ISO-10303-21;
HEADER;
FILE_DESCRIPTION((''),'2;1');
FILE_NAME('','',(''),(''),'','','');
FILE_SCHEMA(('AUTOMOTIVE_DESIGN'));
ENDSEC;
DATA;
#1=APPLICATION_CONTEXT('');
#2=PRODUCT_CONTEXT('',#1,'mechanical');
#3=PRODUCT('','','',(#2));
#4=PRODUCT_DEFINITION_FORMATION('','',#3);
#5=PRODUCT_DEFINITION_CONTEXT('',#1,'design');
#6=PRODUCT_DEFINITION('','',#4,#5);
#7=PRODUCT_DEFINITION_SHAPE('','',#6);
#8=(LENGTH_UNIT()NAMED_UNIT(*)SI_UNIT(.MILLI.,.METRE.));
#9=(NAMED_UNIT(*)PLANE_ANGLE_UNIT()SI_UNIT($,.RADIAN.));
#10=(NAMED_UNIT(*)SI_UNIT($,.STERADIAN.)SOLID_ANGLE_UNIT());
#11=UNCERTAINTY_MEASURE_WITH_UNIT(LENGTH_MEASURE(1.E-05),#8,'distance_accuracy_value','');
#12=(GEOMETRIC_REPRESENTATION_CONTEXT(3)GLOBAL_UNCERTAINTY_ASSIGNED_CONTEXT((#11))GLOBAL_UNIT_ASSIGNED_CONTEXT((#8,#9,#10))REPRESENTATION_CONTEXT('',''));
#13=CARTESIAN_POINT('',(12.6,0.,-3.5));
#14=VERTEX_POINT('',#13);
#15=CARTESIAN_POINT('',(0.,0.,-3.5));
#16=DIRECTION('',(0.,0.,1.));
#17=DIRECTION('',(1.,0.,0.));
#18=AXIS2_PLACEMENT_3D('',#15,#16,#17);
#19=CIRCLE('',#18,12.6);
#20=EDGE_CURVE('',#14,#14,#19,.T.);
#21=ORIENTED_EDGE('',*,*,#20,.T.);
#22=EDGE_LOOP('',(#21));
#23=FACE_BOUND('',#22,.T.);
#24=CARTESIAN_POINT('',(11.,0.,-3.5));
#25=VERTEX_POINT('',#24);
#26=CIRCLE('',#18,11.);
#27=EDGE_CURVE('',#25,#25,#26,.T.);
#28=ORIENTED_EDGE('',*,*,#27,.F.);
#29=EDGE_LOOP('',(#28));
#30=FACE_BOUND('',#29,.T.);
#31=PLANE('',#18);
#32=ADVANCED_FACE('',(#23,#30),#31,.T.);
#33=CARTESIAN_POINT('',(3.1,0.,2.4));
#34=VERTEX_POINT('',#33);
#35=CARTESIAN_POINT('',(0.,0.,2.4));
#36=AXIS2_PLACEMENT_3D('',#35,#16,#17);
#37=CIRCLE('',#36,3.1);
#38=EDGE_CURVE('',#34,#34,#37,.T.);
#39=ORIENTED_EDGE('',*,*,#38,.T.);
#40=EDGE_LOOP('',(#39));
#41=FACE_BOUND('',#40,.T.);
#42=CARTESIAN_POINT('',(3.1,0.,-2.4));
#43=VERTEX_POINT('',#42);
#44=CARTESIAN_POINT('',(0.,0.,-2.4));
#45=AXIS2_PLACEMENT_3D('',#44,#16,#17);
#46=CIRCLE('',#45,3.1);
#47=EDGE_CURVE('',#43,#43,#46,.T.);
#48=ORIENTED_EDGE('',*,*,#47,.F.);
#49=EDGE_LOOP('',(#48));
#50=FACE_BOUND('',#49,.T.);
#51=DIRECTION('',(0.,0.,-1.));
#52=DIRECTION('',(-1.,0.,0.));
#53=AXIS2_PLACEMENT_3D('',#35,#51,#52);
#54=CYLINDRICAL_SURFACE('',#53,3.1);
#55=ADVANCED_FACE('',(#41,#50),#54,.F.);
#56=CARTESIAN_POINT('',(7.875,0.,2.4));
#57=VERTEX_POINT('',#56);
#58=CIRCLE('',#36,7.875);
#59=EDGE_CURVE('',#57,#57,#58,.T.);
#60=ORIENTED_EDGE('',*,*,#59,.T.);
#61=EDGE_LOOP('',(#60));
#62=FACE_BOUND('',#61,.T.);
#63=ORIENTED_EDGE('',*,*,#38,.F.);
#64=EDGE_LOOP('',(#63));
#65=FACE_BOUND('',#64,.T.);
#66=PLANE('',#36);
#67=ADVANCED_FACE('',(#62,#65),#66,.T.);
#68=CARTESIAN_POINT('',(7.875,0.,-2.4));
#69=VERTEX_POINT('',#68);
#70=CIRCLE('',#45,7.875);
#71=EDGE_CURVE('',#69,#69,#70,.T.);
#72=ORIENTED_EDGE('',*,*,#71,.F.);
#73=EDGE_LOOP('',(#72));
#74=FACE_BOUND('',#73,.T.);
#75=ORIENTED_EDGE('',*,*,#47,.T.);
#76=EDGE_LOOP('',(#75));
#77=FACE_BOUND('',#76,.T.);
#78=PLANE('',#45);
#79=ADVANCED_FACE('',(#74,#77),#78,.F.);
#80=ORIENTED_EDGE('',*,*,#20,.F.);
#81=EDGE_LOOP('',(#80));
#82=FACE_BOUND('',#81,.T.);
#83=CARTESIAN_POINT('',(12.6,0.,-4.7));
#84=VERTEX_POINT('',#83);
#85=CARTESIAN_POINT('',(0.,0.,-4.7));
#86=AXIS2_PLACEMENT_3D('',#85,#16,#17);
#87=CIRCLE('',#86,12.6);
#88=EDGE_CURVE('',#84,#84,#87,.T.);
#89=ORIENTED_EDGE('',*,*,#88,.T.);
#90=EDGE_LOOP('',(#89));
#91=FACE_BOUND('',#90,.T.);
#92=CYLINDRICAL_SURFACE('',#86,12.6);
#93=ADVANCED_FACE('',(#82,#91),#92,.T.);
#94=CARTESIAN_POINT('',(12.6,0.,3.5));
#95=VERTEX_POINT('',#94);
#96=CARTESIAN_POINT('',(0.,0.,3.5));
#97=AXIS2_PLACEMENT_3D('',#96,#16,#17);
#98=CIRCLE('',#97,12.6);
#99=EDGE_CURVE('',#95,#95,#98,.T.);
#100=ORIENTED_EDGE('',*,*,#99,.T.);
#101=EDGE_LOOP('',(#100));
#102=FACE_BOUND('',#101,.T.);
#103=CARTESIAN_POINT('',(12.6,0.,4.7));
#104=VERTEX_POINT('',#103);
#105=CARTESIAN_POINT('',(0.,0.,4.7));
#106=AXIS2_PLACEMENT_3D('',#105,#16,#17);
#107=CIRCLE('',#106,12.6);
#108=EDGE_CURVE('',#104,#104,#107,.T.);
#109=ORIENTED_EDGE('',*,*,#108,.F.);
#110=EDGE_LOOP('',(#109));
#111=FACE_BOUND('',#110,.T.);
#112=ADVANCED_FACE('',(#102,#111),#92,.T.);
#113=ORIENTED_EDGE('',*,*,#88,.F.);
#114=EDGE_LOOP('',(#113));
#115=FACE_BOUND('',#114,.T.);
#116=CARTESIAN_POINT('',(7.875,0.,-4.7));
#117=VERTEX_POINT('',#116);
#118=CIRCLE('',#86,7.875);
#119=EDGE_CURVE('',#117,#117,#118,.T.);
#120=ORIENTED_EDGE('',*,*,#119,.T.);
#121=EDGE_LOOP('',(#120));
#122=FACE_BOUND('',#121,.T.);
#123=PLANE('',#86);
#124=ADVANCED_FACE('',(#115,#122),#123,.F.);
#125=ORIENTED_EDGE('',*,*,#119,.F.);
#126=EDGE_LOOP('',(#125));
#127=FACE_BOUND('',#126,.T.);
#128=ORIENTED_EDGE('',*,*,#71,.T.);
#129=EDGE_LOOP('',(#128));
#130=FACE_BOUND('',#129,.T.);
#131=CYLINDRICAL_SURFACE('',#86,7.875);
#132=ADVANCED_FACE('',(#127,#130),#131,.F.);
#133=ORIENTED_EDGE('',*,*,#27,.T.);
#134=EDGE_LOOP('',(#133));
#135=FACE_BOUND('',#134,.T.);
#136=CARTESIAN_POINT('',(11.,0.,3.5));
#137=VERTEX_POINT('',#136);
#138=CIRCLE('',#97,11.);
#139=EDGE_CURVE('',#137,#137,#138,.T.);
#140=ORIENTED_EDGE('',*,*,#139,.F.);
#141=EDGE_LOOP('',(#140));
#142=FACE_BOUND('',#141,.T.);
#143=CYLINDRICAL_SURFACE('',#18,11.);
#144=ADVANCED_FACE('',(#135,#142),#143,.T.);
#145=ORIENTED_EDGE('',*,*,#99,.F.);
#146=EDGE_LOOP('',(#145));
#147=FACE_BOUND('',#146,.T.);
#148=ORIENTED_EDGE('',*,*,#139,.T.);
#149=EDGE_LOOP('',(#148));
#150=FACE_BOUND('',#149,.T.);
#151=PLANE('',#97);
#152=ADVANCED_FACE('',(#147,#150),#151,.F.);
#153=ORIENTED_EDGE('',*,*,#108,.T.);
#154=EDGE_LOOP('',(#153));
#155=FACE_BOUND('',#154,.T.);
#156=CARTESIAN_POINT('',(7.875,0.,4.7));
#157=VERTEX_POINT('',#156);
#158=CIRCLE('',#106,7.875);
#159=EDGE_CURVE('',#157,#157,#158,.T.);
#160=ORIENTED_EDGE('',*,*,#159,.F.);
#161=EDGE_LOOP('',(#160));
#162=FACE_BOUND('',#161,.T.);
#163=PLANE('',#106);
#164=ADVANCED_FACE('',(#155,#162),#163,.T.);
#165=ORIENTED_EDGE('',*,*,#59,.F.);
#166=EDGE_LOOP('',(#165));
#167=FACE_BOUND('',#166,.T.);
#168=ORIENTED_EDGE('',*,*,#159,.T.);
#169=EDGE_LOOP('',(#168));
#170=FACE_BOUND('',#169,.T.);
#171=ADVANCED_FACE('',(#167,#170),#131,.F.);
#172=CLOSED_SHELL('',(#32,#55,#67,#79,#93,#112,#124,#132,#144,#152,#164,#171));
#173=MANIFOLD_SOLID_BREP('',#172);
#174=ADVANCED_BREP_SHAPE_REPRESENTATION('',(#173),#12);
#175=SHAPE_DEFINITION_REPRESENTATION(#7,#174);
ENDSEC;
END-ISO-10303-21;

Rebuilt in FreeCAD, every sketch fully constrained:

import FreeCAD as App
import Part
import Sketcher

V = App.Vector
Q = App.Units.Quantity

doc = App.newDocument("Part")
body = doc.addObject("PartDesign::Body", "Body")

# Sketch on XY plane
sketch1 = body.newObject("Sketcher::SketchObject", "Sketch")
sketch1.AttachmentSupport = (doc.getObject("XY_Plane"), [""])
sketch1.MapMode = "FlatFace"
sketch1.addGeometry([
    Part.Circle(V(0, 0, 0), V(0, 0, 1), 7.875),
    Part.Circle(V(0, 0, 0), V(0, 0, 1), 3.1),
], False)
sketch1.addConstraint([
    Sketcher.Constraint("Coincident", 0, 3, -1, 1),
    Sketcher.Constraint("Coincident", 1, 3, -1, 1),
    Sketcher.Constraint("Diameter", 1, Q("6.2 mm")),
    Sketcher.Constraint("Diameter", 0, Q("15.75 mm")),
])
pad1 = body.newObject("PartDesign::Pad", "Pad")
pad1.Profile = sketch1
pad1.Length = 4.8
pad1.Midplane = True

# Sketch on XY plane
sketch2 = body.newObject("Sketcher::SketchObject", "Sketch001")
sketch2.AttachmentSupport = (doc.getObject("XY_Plane"), [""])
sketch2.MapMode = "FlatFace"
sketch2.AttachmentOffset = App.Placement(V(0, 0, 2.4), App.Rotation())
sketch2.addGeometry([
    Part.Circle(V(0, 0, 0), V(0, 0, 1), 12.6),
    Part.Circle(V(0, 0, 0), V(0, 0, 1), 7.875),
], False)
sketch2.addConstraint([
    Sketcher.Constraint("Coincident", 0, 3, -1, 1),
    Sketcher.Constraint("Coincident", 1, 3, -1, 1),
    Sketcher.Constraint("Diameter", 0, Q("25.2 mm")),
    Sketcher.Constraint("Diameter", 1, Q("15.75 mm")),
])
pad2 = body.newObject("PartDesign::Pad", "Pad001")
pad2.Profile = sketch2
pad2.Type = "TwoLengths"
pad2.Length = 2.3
pad2.Length2 = 7.1

# Sketch on XY plane
sketch3 = body.newObject("Sketcher::SketchObject", "Sketch002")
sketch3.AttachmentSupport = (doc.getObject("XY_Plane"), [""])
sketch3.MapMode = "FlatFace"
sketch3.addGeometry([
    Part.Circle(V(0, 0, 0), V(0, 0, 1), 12.6),
    Part.Circle(V(0, 0, 0), V(0, 0, 1), 11),
], False)
sketch3.addConstraint([
    Sketcher.Constraint("Coincident", 0, 3, -1, 1),
    Sketcher.Constraint("Coincident", 1, 3, -1, 1),
    Sketcher.Constraint("Diameter", 1, Q("22 mm")),
    Sketcher.Constraint("Diameter", 0, Q("25.2 mm")),
])
pocket1 = body.newObject("PartDesign::Pocket", "Pocket")
pocket1.Profile = sketch3
pocket1.Length = 7
pocket1.Midplane = True

doc.recompute()
